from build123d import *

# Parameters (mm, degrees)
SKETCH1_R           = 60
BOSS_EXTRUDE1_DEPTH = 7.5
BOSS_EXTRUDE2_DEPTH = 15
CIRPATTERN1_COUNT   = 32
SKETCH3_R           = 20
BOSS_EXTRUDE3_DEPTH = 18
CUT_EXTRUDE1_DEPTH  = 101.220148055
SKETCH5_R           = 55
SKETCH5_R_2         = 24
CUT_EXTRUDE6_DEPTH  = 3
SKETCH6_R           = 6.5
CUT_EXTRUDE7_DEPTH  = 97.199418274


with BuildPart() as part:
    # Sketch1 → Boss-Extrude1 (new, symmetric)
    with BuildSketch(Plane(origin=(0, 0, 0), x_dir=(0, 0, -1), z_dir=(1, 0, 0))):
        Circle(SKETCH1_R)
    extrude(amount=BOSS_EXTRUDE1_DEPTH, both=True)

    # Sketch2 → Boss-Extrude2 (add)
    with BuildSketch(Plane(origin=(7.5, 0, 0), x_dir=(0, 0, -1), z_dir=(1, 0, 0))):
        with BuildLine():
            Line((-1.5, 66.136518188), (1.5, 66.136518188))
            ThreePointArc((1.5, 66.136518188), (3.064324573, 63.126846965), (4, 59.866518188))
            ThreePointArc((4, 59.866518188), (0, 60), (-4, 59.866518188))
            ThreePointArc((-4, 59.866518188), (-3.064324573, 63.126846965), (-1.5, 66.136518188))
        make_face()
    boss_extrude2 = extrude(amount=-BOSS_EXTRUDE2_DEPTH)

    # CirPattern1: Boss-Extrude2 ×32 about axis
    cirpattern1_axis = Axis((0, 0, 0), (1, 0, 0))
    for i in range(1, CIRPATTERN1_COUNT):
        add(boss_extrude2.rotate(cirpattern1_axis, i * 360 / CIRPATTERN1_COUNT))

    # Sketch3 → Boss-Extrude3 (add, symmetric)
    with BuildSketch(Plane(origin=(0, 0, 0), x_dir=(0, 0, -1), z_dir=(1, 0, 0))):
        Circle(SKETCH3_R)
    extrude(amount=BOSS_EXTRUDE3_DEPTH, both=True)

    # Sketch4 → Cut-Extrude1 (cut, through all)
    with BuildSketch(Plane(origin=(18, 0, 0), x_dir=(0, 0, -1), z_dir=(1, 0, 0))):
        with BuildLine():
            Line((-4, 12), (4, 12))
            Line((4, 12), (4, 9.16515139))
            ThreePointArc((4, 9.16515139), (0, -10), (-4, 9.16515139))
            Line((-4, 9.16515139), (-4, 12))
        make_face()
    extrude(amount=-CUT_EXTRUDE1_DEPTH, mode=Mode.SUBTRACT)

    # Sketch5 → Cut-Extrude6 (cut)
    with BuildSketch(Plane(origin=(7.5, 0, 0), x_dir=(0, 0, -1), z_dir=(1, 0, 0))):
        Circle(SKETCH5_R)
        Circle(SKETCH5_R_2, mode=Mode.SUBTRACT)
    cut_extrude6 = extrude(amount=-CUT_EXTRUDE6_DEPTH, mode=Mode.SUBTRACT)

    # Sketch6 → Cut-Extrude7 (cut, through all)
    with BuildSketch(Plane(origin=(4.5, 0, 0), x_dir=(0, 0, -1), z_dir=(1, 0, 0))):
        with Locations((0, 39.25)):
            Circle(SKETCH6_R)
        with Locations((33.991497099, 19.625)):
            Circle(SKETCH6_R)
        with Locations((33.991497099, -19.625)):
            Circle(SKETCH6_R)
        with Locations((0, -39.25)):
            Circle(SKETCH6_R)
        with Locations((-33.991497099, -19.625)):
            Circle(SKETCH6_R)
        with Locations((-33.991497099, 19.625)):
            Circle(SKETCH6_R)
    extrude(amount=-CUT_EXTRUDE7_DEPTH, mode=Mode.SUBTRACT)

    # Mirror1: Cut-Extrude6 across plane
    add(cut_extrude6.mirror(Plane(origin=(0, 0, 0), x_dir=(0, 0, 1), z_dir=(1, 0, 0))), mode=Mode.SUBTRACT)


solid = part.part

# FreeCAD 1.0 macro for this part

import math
import FreeCAD as App
import Part
import Sketcher

V = App.Vector

doc = App.newDocument("Part")
body = doc.addObject("PartDesign::Body", "Body")

sketch1 = body.newObject("Sketcher::SketchObject", "Sketch")
sketch1.AttachmentSupport = (doc.getObject("YZ_Plane"), [""])
sketch1.MapMode = "FlatFace"
sketch1.addGeometry(Part.Circle(V(0, 0, 0), V(0, 0, 1), 60), False)
sketch1.addConstraint(Sketcher.Constraint("Coincident", 0, 3, -1, 1))
sketch1.addConstraint(Sketcher.Constraint("Diameter", 0, 120.0))
pad1 = body.newObject("PartDesign::Pad", "Pad")
pad1.Profile = sketch1
pad1.Length = 15
pad1.Midplane = True

sketch2 = body.newObject("Sketcher::SketchObject", "Sketch001")
sketch2.AttachmentSupport = (doc.getObject("YZ_Plane"), [""])
sketch2.MapMode = "FlatFace"
sketch2.AttachmentOffset = App.Placement(V(0, 0, 7.5), App.Rotation())
sketch2.addGeometry(Part.LineSegment(V(66.1, -1.5, 0), V(66.1, 1.5, 0)), False)
sketch2.addGeometry(Part.ArcOfCircle(Part.Circle(V(56.8, -12.7, 0), V(0, 0, 1), 17), math.radians(57), math.radians(80)), False)
sketch2.addGeometry(Part.ArcOfCircle(Part.Circle(V(0, 0, 0), V(0, 0, 1), 60), math.radians(-3.82), math.radians(3.82)), False)
sketch2.addGeometry(Part.ArcOfCircle(Part.Circle(V(56.8, 12.7, 0), V(0, 0, 1), 17), math.radians(-80), math.radians(-57)), False)
sketch2.addConstraint(Sketcher.Constraint("Coincident", 0, 2, 1, 1))
sketch2.addConstraint(Sketcher.Constraint("Coincident", 1, 2, 2, 2))
sketch2.addConstraint(Sketcher.Constraint("Coincident", 2, 1, 3, 1))
sketch2.addConstraint(Sketcher.Constraint("Coincident", 3, 2, 0, 1))
sketch2.addConstraint(Sketcher.Constraint("Vertical", 0))
sketch2.addConstraint(Sketcher.Constraint("Coincident", 2, 3, -1, 1))
sketch2.addConstraint(Sketcher.Constraint("Equal", 1, 3))
sketch2.addConstraint(Sketcher.Constraint("Symmetric", 1, 3, 3, 3, -1))
sketch2.addConstraint(Sketcher.Constraint("Radius", 1, 17.0))
sketch2.addConstraint(Sketcher.Constraint("Radius", 2, 60.0))
sketch2.addConstraint(Sketcher.Constraint("DistanceY", 0, 1, 0, 2, 3.0))
sketch2.addConstraint(Sketcher.Constraint("DistanceY", -1, 1, 1, 2, 4.0))
sketch2.addConstraint(Sketcher.Constraint("DistanceX", 1, 2, 0, 2, 6.27))
pad2 = body.newObject("PartDesign::Pad", "Pad001")
pad2.Profile = sketch2
pad2.Length = 15
pad2.Reversed = True
doc.recompute()

polarpattern = body.newObject("PartDesign::PolarPattern", "PolarPattern")
polarpattern.Originals = [pad2]
polarpattern.Axis = (doc.getObject("X_Axis"), [""])
polarpattern.Angle = 360
polarpattern.Occurrences = 32
body.Tip = polarpattern

sketch3 = body.newObject("Sketcher::SketchObject", "Sketch002")
sketch3.AttachmentSupport = (doc.getObject("YZ_Plane"), [""])
sketch3.MapMode = "FlatFace"
sketch3.addGeometry(Part.Circle(V(0, 0, 0), V(0, 0, 1), 20), False)
sketch3.addConstraint(Sketcher.Constraint("Coincident", 0, 3, -1, 1))
sketch3.addConstraint(Sketcher.Constraint("Diameter", 0, 40.0))
pad3 = body.newObject("PartDesign::Pad", "Pad002")
pad3.Profile = sketch3
pad3.Length = 36
pad3.Midplane = True

sketch4 = body.newObject("Sketcher::SketchObject", "Sketch003")
sketch4.AttachmentSupport = (doc.getObject("YZ_Plane"), [""])
sketch4.MapMode = "FlatFace"
sketch4.AttachmentOffset = App.Placement(V(0, 0, 18), App.Rotation())
sketch4.addGeometry(Part.LineSegment(V(12, -4, 0), V(12, 4, 0)), False)
sketch4.addGeometry(Part.LineSegment(V(12, 4, 0), V(9.2, 4, 0)), False)
sketch4.addGeometry(Part.ArcOfCircle(Part.Circle(V(0, 0, 0), V(0, 0, 1), 10), math.radians(24), math.radians(336)), False)
sketch4.addGeometry(Part.LineSegment(V(9.2, -4, 0), V(12, -4, 0)), False)
sketch4.addConstraint(Sketcher.Constraint("Coincident", 0, 2, 1, 1))
sketch4.addConstraint(Sketcher.Constraint("Coincident", 1, 2, 2, 1))
sketch4.addConstraint(Sketcher.Constraint("Coincident", 2, 2, 3, 1))
sketch4.addConstraint(Sketcher.Constraint("Coincident", 3, 2, 0, 1))
sketch4.addConstraint(Sketcher.Constraint("Vertical", 0))
sketch4.addConstraint(Sketcher.Constraint("Horizontal", 1))
sketch4.addConstraint(Sketcher.Constraint("Horizontal", 3))
sketch4.addConstraint(Sketcher.Constraint("Coincident", 2, 3, -1, 1))
sketch4.addConstraint(Sketcher.Constraint("Vertical", 1, 2, 2, 2))
sketch4.addConstraint(Sketcher.Constraint("Radius", 2, 10.0))
sketch4.addConstraint(Sketcher.Constraint("DistanceY", 0, 1, 0, 2, 8.0))
sketch4.addConstraint(Sketcher.Constraint("DistanceX", -1, 1, 0, 2, 12.0))
pocket1 = body.newObject("PartDesign::Pocket", "Pocket")
pocket1.Profile = sketch4
pocket1.Type = "ThroughAll"

sketch5 = body.newObject("Sketcher::SketchObject", "Sketch004")
sketch5.AttachmentSupport = (doc.getObject("YZ_Plane"), [""])
sketch5.MapMode = "FlatFace"
sketch5.AttachmentOffset = App.Placement(V(0, 0, 7.5), App.Rotation())
sketch5.addGeometry(Part.Circle(V(0, 0, 0), V(0, 0, 1), 55), False)
sketch5.addGeometry(Part.Circle(V(0, 0, 0), V(0, 0, 1), 24), False)
sketch5.addConstraint(Sketcher.Constraint("Coincident", 0, 3, -1, 1))
sketch5.addConstraint(Sketcher.Constraint("Coincident", 1, 3, -1, 1))
sketch5.addConstraint(Sketcher.Constraint("Diameter", 0, 110.0))
sketch5.addConstraint(Sketcher.Constraint("Diameter", 1, 48.0))
pocket2 = body.newObject("PartDesign::Pocket", "Pocket001")
pocket2.Profile = sketch5
pocket2.Length = 3

sketch6 = body.newObject("Sketcher::SketchObject", "Sketch005")
sketch6.AttachmentSupport = (doc.getObject("YZ_Plane"), [""])
sketch6.MapMode = "FlatFace"
sketch6.AttachmentOffset = App.Placement(V(0, 0, 4.5), App.Rotation())
sketch6.addGeometry(Part.Circle(V(39, 0, 0), V(0, 0, 1), 6), False)
sketch6.addGeometry(Part.Circle(V(20, -34, 0), V(0, 0, 1), 6), False)
sketch6.addGeometry(Part.Circle(V(-20, -34, 0), V(0, 0, 1), 6), False)
sketch6.addGeometry(Part.Circle(V(-39, 0, 0), V(0, 0, 1), 6), False)
sketch6.addGeometry(Part.Circle(V(-20, 34, 0), V(0, 0, 1), 6), False)
sketch6.addGeometry(Part.Circle(V(20, 34, 0), V(0, 0, 1), 6), False)
sketch6.addConstraint(Sketcher.Constraint("Equal", 0, 1))
sketch6.addConstraint(Sketcher.Constraint("Equal", 1, 2))
sketch6.addConstraint(Sketcher.Constraint("Equal", 2, 3))
sketch6.addConstraint(Sketcher.Constraint("Equal", 3, 4))
sketch6.addConstraint(Sketcher.Constraint("Equal", 4, 5))
sketch6.addConstraint(Sketcher.Constraint("Symmetric", 0, 3, 3, 3, -1, 1))
sketch6.addConstraint(Sketcher.Constraint("Symmetric", 1, 3, 4, 3, -1, 1))
sketch6.addConstraint(Sketcher.Constraint("Symmetric", 2, 3, 5, 3, -1, 1))
sketch6.addConstraint(Sketcher.Constraint("Symmetric", 1, 3, 2, 3, -2))
sketch6.addConstraint(Sketcher.Constraint("PointOnObject", 0, 3, -1))
sketch6.addConstraint(Sketcher.Constraint("Diameter", 0, 13.0))
sketch6.addConstraint(Sketcher.Constraint("DistanceX", 3, 3, 0, 3, 78.5))
sketch6.addConstraint(Sketcher.Constraint("DistanceX", 2, 3, 1, 3, 39.25))
sketch6.addConstraint(Sketcher.Constraint("DistanceY", 1, 3, -1, 1, 33.991497))
pocket3 = body.newObject("PartDesign::Pocket", "Pocket002")
pocket3.Profile = sketch6
pocket3.Type = "ThroughAll"
doc.recompute()

mirrored = body.newObject("PartDesign::Mirrored", "Mirrored")
mirrored.Originals = [pocket2]
mirrored.MirrorPlane = (doc.getObject("YZ_Plane"), [""])
body.Tip = mirrored

doc.recompute()
